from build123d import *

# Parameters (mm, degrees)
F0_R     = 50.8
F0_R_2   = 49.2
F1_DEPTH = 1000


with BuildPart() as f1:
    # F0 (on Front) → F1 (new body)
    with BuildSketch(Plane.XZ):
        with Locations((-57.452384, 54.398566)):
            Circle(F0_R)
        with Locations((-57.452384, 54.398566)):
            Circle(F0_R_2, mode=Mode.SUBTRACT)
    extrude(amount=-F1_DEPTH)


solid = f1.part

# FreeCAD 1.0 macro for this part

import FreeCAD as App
import Part
import Sketcher
Q = App.Units.Quantity

doc = App.newDocument("Part")
params = doc.addObject("Spreadsheet::Sheet", "Params")
for row, (alias, value) in enumerate([
    ("sketch1_diameter", "101.6 mm"),
    ("sketch1_diameter2", "98.4 mm"),
    ("pad1_length", "1000 mm"),
], start=1):
    params.set(f"A{row}", alias)
    params.set(f"B{row}", "=" + value)
    params.setAlias(f"B{row}", alias)

body = doc.addObject("PartDesign::Body", "Body")

# Sketch on XZ plane
sketch1 = body.newObject("Sketcher::SketchObject", "Sketch")
sketch1.AttachmentSupport = (doc.getObject("XZ_Plane"), [""])
sketch1.MapMode = "FlatFace"
sketch1.addGeometry([
    Part.Circle(App.Vector(-57, 54, 0), App.Vector(0, 0, 1), 51),
    Part.Circle(App.Vector(-57, 54, 0), App.Vector(0, 0, 1), 49),
], False)
sketch1.addConstraint([
    Sketcher.Constraint("Coincident", 1, 3, 0, 3),
    Sketcher.Constraint("Diameter", 0, Q("101.6 mm")),
    Sketcher.Constraint("Diameter", 1, Q("98.4 mm")),
    Sketcher.Constraint("DistanceX", 0, 3, -1, 1, Q("57.452384 mm")),
    Sketcher.Constraint("DistanceY", -1, 1, 0, 3, Q("54.398566 mm")),
])
sketch1.setExpression("Constraints[1]", "Params.sketch1_diameter")
sketch1.setExpression("Constraints[2]", "Params.sketch1_diameter2")
pad1 = body.newObject("PartDesign::Pad", "Pad")
pad1.Profile = sketch1
pad1.setExpression("Length", "Params.pad1_length")
pad1.Reversed = True

doc.recompute()
